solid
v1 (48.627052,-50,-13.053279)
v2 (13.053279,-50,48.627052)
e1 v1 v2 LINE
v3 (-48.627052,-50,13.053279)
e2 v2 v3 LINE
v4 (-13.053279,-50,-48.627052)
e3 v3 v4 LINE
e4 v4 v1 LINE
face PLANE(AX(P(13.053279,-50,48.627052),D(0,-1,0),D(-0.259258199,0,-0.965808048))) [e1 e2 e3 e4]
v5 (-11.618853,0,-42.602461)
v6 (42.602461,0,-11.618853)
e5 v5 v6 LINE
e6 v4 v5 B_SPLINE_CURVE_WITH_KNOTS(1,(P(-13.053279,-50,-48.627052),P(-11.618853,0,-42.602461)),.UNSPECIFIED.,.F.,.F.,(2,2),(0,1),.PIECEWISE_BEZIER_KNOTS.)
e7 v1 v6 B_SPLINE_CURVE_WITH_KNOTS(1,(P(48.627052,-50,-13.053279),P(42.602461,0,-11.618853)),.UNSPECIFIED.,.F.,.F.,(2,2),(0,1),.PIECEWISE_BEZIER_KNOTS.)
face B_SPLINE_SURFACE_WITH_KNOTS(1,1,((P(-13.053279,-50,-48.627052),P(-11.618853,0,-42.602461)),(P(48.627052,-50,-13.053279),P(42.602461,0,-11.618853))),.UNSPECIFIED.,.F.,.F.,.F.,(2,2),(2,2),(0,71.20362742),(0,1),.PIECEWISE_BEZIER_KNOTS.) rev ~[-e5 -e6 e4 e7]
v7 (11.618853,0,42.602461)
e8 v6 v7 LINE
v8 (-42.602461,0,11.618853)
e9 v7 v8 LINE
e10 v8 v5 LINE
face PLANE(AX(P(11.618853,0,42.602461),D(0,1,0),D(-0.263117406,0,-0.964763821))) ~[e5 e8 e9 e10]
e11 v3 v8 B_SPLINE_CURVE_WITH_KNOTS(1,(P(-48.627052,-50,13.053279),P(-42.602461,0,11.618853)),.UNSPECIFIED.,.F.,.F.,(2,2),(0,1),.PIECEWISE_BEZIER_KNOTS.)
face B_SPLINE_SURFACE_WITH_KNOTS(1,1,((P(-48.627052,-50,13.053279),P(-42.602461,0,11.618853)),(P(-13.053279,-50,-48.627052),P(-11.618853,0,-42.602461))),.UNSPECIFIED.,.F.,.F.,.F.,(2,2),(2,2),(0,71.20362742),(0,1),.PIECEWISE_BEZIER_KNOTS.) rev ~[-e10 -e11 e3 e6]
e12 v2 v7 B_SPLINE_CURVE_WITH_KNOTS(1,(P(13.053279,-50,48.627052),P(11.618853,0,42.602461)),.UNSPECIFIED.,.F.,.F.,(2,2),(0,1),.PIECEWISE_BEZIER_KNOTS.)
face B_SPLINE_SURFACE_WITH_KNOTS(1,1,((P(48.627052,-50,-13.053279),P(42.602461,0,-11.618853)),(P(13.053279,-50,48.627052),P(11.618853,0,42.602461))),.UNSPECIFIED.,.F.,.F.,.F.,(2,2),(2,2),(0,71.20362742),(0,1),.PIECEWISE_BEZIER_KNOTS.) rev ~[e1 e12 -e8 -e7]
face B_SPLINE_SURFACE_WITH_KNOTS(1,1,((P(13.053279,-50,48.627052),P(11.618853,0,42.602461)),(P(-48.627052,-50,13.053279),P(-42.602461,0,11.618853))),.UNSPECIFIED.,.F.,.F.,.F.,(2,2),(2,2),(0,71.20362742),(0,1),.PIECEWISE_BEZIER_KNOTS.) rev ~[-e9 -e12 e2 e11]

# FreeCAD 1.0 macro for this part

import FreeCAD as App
import Part
import Sketcher
from FreeCAD import Vector

doc = App.newDocument("Part")
body = doc.addObject("PartDesign::Body", "Body")

# Sketch on XZ plane
sketch1 = body.newObject("Sketcher::SketchObject", "Sketch")
sketch1.AttachmentSupport = (doc.getObject("XZ_Plane"), [""])
sketch1.MapMode = "FlatFace"
sketch1.AttachmentOffset = App.Placement(Vector(0, 0, 50), App.Rotation())
sketch1.addGeometry([
    Part.LineSegment(Vector(13, 49, 0), Vector(-49, 13, 0)),
    Part.LineSegment(Vector(-49, 13, 0), Vector(-13, -49, 0)),
    Part.LineSegment(Vector(-13, -49, 0), Vector(49, -13, 0)),
    Part.LineSegment(Vector(49, -13, 0), Vector(13, 49, 0)),
], False)
sketch1.addConstraint([
    Sketcher.Constraint("Coincident", 0, 2, 1, 1),
    Sketcher.Constraint("Coincident", 1, 2, 2, 1),
    Sketcher.Constraint("Coincident", 2, 2, 3, 1),
    Sketcher.Constraint("Coincident", 3, 2, 0, 1),
    Sketcher.Constraint("Symmetric", 0, 2, 2, 2, -1, 1),
    Sketcher.Constraint("Symmetric", 1, 2, 3, 2, -1, 1),
    Sketcher.Constraint("Perpendicular", 0, 1),
    Sketcher.Constraint("Equal", 0, 1),
    Sketcher.Constraint("DistanceY", -1, 1, 0, 2, 13.053279),
    Sketcher.Constraint("DistanceY", 1, 2, 0, 2, 61.680331),
])

# Sketch on XZ plane
sketch2 = body.newObject("Sketcher::SketchObject", "Sketch001")
sketch2.AttachmentSupport = (doc.getObject("XZ_Plane"), [""])
sketch2.MapMode = "FlatFace"
sketch2.addGeometry([
    Part.LineSegment(Vector(12, 43, 0), Vector(-43, 12, 0)),
    Part.LineSegment(Vector(-43, 12, 0), Vector(-12, -43, 0)),
    Part.LineSegment(Vector(-12, -43, 0), Vector(43, -12, 0)),
    Part.LineSegment(Vector(43, -12, 0), Vector(12, 43, 0)),
], False)
sketch2.addConstraint([
    Sketcher.Constraint("Coincident", 0, 2, 1, 1),
    Sketcher.Constraint("Coincident", 1, 2, 2, 1),
    Sketcher.Constraint("Coincident", 2, 2, 3, 1),
    Sketcher.Constraint("Coincident", 3, 2, 0, 1),
    Sketcher.Constraint("Symmetric", 0, 2, 2, 2, -1, 1),
    Sketcher.Constraint("Symmetric", 1, 2, 3, 2, -1, 1),
    Sketcher.Constraint("Perpendicular", 0, 1),
    Sketcher.Constraint("Equal", 0, 1),
    Sketcher.Constraint("Distance", 0, 62.449458),
    Sketcher.Constraint("DistanceX", 0, 2, -1, 1, 42.602461),
])

additiveloft = body.newObject("PartDesign::AdditiveLoft", "AdditiveLoft")
additiveloft.Profile = sketch1
additiveloft.Sections = [sketch2]

doc.recompute()
